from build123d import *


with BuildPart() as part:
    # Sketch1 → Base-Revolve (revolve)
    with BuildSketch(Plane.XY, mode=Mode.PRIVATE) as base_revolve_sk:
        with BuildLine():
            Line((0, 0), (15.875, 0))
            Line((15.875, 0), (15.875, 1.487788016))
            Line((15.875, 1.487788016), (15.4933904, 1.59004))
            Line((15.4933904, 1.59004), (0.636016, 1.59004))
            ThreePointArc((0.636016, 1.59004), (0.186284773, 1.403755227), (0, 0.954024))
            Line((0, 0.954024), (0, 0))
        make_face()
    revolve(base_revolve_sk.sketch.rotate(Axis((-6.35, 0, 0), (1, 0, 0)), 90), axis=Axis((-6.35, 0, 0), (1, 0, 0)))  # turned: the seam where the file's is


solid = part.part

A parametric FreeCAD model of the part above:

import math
import FreeCAD as App
import Part
import Sketcher
from FreeCAD import Vector
Q = App.Units.Quantity

doc = App.newDocument("Part")
body = doc.addObject("PartDesign::Body", "Body")

# Sketch on XY plane
sketch1 = body.newObject("Sketcher::SketchObject", "Sketch")
sketch1.AttachmentSupport = (doc.getObject("XY_Plane"), [""])
sketch1.MapMode = "FlatFace"
sketch1.addGeometry([
    Part.LineSegment(Vector(0, 0, 0), Vector(15.88, 0, 0)),  # 0
    Part.LineSegment(Vector(15.88, 0, 0), Vector(15.88, 1.49, 0)),  # 1
    Part.LineSegment(Vector(15.88, 1.49, 0), Vector(15.49, 1.59, 0)),  # 2
    Part.LineSegment(Vector(15.49, 1.59, 0), Vector(0.64, 1.59, 0)),  # 3
    Part.ArcOfCircle(Part.Circle(Vector(0.64, 0.95, 0), Vector(0, 0, 1), 0.64), math.radians(90), math.radians(180)),  # 4
    Part.LineSegment(Vector(0, 0.95, 0), Vector(0, 0, 0)),  # 5
], False)
sketch1.addConstraint([
    Sketcher.Constraint("Coincident", 0, 2, 1, 1),
    Sketcher.Constraint("Coincident", 1, 2, 2, 1),
    Sketcher.Constraint("Coincident", 2, 2, 3, 1),
    Sketcher.Constraint("Tangent", 3, 2, 4, 1),
    Sketcher.Constraint("Tangent", 4, 2, 5, 1),
    Sketcher.Constraint("Coincident", 5, 2, 0, 1),
    Sketcher.Constraint("Horizontal", 0),
    Sketcher.Constraint("Vertical", 1),
    Sketcher.Constraint("Horizontal", 3),
    Sketcher.Constraint("Vertical", 5),
    Sketcher.Constraint("Coincident", 5, 2, -1, 1),
    Sketcher.Constraint("Angle", 2, Q("165 deg")),
    Sketcher.Constraint("DistanceX", 0, 1, 0, 2, Q("0.625 in")),
    Sketcher.Constraint("DistanceY", -1, 1, 2, 2, Q("0.0626 in")),
    Sketcher.Constraint("Radius", 4, 0.636016),
    Sketcher.Constraint("DistanceY", 1, 1, 1, 2, 1.487788),
])
revolution = body.newObject("PartDesign::Revolution", "Revolution")
revolution.Profile = sketch1
revolution.ReferenceAxis = (sketch1, ["H_Axis"])
revolution.Angle = 360

doc.recompute()
